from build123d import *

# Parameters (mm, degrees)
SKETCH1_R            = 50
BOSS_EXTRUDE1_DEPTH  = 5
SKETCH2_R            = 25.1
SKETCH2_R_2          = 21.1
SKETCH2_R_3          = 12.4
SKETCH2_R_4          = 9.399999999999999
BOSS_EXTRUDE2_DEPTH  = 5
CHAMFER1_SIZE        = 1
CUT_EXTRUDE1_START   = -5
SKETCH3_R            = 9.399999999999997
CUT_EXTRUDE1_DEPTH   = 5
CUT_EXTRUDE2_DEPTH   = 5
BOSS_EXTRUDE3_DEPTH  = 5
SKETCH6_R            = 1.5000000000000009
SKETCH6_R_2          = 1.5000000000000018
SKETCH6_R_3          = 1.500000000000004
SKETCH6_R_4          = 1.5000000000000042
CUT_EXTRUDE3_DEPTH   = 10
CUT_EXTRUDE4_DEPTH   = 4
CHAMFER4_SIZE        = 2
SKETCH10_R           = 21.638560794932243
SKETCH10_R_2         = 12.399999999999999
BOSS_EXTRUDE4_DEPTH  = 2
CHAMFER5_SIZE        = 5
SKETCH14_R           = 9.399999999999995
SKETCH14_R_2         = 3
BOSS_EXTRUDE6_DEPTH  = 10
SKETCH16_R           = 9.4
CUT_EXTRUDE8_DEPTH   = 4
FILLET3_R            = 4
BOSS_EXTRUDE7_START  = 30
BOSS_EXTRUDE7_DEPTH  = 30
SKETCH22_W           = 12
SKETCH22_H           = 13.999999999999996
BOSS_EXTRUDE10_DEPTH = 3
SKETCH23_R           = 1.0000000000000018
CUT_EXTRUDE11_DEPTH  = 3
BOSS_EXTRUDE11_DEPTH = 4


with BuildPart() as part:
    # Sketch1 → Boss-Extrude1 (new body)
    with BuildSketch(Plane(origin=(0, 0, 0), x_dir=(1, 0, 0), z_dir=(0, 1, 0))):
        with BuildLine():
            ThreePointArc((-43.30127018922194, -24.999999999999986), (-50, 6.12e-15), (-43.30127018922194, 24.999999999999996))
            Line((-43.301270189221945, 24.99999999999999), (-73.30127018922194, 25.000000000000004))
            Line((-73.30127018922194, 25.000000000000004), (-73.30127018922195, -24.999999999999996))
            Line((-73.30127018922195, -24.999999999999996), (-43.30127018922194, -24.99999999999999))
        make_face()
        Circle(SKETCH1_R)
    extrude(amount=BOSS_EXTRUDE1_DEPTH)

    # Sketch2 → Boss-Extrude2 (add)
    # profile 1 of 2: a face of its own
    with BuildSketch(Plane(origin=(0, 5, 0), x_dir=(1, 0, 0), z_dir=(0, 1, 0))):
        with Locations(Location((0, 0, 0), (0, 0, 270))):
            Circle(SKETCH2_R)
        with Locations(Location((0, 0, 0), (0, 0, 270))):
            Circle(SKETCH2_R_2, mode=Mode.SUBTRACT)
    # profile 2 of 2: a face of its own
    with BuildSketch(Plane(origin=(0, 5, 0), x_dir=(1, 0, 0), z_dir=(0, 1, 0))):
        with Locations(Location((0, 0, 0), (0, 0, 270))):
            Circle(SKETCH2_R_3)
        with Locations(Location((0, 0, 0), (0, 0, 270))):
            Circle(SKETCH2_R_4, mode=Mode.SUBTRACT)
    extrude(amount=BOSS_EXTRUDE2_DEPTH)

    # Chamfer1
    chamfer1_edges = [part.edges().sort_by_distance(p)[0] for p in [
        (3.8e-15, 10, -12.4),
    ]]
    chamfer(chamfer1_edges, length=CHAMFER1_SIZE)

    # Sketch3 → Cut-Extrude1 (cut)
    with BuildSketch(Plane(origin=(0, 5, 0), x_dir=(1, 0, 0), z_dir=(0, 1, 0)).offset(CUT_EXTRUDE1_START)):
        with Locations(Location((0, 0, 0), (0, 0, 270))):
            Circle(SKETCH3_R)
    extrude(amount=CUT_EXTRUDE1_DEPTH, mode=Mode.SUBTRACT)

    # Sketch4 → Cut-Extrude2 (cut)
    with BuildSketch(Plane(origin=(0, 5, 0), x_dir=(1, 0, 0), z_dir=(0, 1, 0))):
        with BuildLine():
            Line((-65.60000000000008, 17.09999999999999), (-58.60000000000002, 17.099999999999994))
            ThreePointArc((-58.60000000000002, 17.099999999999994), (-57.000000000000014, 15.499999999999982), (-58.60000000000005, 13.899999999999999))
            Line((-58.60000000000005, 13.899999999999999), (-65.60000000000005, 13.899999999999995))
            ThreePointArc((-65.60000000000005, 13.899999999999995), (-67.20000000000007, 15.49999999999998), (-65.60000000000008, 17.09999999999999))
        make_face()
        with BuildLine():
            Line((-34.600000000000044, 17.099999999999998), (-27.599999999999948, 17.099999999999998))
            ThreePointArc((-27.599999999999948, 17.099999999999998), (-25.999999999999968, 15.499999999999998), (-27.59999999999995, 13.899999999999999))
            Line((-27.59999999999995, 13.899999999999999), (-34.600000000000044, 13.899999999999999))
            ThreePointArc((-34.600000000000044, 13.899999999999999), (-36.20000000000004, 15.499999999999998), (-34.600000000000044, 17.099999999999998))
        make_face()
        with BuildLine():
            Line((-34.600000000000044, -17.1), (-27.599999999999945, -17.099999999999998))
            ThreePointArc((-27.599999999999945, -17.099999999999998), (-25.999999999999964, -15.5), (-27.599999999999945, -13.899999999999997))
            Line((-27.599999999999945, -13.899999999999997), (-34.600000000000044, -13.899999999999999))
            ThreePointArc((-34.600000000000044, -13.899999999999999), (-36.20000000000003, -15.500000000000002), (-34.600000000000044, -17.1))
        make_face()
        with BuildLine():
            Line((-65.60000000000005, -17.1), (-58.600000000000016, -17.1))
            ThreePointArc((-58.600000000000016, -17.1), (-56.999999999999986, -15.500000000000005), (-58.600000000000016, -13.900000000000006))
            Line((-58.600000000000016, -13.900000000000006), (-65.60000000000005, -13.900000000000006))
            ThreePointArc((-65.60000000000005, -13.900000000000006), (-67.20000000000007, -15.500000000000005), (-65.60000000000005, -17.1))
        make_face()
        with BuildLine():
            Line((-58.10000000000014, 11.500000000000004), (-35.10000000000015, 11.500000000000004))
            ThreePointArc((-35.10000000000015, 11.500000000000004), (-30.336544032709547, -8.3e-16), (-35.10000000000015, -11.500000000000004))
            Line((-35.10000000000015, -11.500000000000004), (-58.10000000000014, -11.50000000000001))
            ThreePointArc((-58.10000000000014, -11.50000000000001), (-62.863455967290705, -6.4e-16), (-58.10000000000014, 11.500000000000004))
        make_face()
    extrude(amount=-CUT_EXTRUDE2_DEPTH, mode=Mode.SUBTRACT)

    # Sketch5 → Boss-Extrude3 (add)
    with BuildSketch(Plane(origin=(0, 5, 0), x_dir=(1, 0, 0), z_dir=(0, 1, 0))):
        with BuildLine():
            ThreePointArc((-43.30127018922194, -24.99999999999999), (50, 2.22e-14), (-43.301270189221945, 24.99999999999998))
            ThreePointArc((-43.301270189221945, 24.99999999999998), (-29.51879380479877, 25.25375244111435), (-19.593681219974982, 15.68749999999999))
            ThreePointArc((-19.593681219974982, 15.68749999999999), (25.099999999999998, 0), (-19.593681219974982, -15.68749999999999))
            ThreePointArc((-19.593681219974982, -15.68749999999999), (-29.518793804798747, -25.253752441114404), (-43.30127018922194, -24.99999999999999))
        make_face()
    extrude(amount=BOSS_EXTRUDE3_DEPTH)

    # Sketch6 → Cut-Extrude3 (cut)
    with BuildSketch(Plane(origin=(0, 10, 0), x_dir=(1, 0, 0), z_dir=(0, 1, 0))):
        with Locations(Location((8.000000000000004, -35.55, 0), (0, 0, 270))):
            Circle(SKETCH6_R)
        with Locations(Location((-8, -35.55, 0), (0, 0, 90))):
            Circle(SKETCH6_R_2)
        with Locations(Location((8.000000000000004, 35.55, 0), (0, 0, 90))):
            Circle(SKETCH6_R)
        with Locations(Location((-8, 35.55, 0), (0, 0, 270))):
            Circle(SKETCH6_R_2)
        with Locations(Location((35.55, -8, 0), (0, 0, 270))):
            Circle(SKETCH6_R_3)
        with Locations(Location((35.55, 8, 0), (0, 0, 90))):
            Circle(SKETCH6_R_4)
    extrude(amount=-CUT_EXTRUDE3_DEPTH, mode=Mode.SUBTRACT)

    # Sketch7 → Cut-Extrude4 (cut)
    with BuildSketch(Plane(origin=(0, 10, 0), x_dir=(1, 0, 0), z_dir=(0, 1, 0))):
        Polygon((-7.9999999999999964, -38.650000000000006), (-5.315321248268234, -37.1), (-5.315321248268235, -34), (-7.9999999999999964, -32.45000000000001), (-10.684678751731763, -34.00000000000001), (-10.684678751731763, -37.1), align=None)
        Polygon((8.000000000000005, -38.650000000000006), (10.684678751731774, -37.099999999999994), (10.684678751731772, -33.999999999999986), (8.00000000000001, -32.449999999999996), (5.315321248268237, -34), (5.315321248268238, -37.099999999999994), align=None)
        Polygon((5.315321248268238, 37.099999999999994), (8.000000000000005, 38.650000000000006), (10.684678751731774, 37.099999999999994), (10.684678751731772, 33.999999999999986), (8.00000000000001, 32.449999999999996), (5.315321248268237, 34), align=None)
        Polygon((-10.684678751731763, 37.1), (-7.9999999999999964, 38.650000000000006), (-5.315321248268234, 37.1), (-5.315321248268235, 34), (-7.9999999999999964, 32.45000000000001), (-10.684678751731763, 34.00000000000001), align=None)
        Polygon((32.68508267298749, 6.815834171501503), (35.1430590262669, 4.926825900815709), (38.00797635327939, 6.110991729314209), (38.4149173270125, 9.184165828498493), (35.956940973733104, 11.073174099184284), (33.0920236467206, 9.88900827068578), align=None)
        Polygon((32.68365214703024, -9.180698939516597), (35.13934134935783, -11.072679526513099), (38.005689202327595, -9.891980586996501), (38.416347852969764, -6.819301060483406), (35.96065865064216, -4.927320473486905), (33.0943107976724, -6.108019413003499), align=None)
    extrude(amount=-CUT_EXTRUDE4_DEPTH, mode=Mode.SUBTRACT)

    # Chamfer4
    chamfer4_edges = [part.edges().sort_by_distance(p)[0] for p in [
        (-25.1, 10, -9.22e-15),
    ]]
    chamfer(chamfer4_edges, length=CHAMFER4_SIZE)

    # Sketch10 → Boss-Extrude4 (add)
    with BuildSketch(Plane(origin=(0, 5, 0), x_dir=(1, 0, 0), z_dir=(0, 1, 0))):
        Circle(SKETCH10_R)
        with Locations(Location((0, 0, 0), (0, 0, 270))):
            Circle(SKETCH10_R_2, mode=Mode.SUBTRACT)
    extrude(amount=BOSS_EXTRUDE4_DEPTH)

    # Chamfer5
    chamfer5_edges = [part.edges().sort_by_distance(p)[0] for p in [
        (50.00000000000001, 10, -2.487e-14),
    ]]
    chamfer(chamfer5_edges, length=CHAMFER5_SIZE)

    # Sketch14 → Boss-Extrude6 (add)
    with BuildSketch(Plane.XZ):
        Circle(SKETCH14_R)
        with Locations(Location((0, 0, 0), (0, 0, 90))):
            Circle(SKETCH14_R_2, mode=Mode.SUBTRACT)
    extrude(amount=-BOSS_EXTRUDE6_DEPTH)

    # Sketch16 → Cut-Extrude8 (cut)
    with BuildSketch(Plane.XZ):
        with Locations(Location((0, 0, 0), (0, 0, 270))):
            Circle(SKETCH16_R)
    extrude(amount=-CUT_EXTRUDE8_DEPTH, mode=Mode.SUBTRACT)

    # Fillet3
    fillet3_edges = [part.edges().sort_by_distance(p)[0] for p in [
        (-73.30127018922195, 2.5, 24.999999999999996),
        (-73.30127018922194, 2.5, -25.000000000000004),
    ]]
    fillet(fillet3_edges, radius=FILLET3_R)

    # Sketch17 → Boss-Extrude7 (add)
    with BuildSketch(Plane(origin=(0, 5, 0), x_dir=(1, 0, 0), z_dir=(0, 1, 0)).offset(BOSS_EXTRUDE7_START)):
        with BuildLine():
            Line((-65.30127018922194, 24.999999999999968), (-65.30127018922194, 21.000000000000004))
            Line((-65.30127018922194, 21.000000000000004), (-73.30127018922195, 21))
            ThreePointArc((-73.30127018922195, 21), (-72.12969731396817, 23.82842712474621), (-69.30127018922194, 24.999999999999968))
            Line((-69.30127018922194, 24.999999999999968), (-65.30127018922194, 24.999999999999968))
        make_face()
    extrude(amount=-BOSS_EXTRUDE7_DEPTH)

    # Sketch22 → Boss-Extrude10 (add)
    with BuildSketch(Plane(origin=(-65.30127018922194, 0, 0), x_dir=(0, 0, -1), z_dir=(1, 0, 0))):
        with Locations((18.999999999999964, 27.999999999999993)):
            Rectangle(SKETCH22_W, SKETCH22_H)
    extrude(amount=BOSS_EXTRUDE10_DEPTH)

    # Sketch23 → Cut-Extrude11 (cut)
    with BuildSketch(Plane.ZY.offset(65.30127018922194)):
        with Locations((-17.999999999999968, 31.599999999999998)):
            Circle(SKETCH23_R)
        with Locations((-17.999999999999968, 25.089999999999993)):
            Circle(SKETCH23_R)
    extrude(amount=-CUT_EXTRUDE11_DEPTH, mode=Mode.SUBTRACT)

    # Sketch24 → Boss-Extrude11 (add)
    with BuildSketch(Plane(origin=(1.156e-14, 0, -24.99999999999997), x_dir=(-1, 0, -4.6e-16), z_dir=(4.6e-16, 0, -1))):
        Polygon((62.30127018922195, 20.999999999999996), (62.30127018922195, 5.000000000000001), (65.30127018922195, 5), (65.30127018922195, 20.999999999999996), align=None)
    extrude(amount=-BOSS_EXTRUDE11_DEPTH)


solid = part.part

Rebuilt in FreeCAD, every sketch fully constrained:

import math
import FreeCAD as App
import Part
import Sketcher

V = App.Vector
Q = App.Units.Quantity


def edges_at(feature, points):
    """Names of the edges that pass closest to the given points."""
    edges = feature.Shape.Edges
    near = lambda p: min(range(len(edges)), key=lambda i: edges[i].distToShape(Part.Vertex(*p))[0])
    return sorted({f"Edge{near(p) + 1}" for p in points})

doc = App.newDocument("Part")
body = doc.addObject("PartDesign::Body", "Body")

sketch1 = body.newObject("Sketcher::SketchObject", "Sketch")
sketch1.AttachmentSupport = (doc.getObject("XZ_Plane"), [""])
sketch1.MapMode = "FlatFace"
sketch1.addGeometry(Part.LineSegment(V(-43, -25, 0), V(-73, -25, 0)), False)
sketch1.addGeometry(Part.LineSegment(V(-73, -25, 0), V(-73, 25, 0)), False)
sketch1.addGeometry(Part.LineSegment(V(-73, 25, 0), V(-43, 25, 0)), False)
sketch1.addGeometry(Part.ArcOfCircle(Part.Circle(V(0, 0, 0), V(0, 0, 1), 50), math.radians(-150), math.radians(150)), False)
sketch1.addConstraint(Sketcher.Constraint("Coincident", 0, 2, 1, 1))
sketch1.addConstraint(Sketcher.Constraint("Coincident", 1, 2, 2, 1))
sketch1.addConstraint(Sketcher.Constraint("Coincident", 2, 2, 3, 2))
sketch1.addConstraint(Sketcher.Constraint("Coincident", 3, 1, 0, 1))
sketch1.addConstraint(Sketcher.Constraint("Horizontal", 0))
sketch1.addConstraint(Sketcher.Constraint("Vertical", 1))
sketch1.addConstraint(Sketcher.Constraint("Horizontal", 2))
sketch1.addConstraint(Sketcher.Constraint("Coincident", 3, 3, -1, 1))
sketch1.addConstraint(Sketcher.Constraint("Vertical", 2, 2, 3, 1))
sketch1.addConstraint(Sketcher.Constraint("Radius", 3, Q("50 mm")))
sketch1.addConstraint(Sketcher.Constraint("DistanceX", 0, 2, 0, 1, Q("30 mm")))
sketch1.addConstraint(Sketcher.Constraint("DistanceY", 1, 1, 1, 2, Q("50 mm")))
pad1 = body.newObject("PartDesign::Pad", "Pad")
pad1.Profile = sketch1
pad1.Length = 5
pad1.Reversed = True

sketch2 = body.newObject("Sketcher::SketchObject", "Sketch001")
sketch2.AttachmentSupport = (doc.getObject("XZ_Plane"), [""])
sketch2.MapMode = "FlatFace"
sketch2.AttachmentOffset = App.Placement(V(0, 0, -5), App.Rotation())
sketch2.addGeometry(Part.Circle(V(0, 0, 0), V(0, 0, 1), 25), False)
sketch2.addGeometry(Part.Circle(V(0, 0, 0), V(0, 0, 1), 21), False)
sketch2.addGeometry(Part.Circle(V(0, 0, 0), V(0, 0, 1), 12), False)
sketch2.addGeometry(Part.Circle(V(0, 0, 0), V(0, 0, 1), 9), False)
sketch2.addConstraint(Sketcher.Constraint("Coincident", 0, 3, -1, 1))
sketch2.addConstraint(Sketcher.Constraint("Coincident", 1, 3, -1, 1))
sketch2.addConstraint(Sketcher.Constraint("Coincident", 2, 3, -1, 1))
sketch2.addConstraint(Sketcher.Constraint("Coincident", 3, 3, -1, 1))
sketch2.addConstraint(Sketcher.Constraint("Diameter", 0, Q("50.2 mm")))
sketch2.addConstraint(Sketcher.Constraint("Diameter", 1, Q("42.2 mm")))
sketch2.addConstraint(Sketcher.Constraint("Diameter", 2, Q("24.8 mm")))
sketch2.addConstraint(Sketcher.Constraint("Diameter", 3, Q("18.8 mm")))
pad2 = body.newObject("PartDesign::Pad", "Pad001")
pad2.Profile = sketch2
pad2.Length = 5
pad2.Reversed = True
doc.recompute()

chamfer = body.newObject("PartDesign::Chamfer", "Chamfer")
chamfer.Base = (pad2, edges_at(pad2, [(0, 10, -12.4)]))
chamfer.Size = 1

sketch3 = body.newObject("Sketcher::SketchObject", "Sketch002")
sketch3.AttachmentSupport = (doc.getObject("XZ_Plane"), [""])
sketch3.MapMode = "FlatFace"
sketch3.addGeometry(Part.Circle(V(0, 0, 0), V(0, 0, 1), 9), False)
sketch3.addConstraint(Sketcher.Constraint("Coincident", 0, 3, -1, 1))
sketch3.addConstraint(Sketcher.Constraint("Diameter", 0, Q("18.8 mm")))
pocket1 = body.newObject("PartDesign::Pocket", "Pocket")
pocket1.Profile = sketch3
pocket1.Length = 5

sketch4 = body.newObject("Sketcher::SketchObject", "Sketch003")
sketch4.AttachmentSupport = (doc.getObject("XZ_Plane"), [""])
sketch4.MapMode = "FlatFace"
sketch4.AttachmentOffset = App.Placement(V(0, 0, -5), App.Rotation())
sketch4.addGeometry(Part.LineSegment(V(-58.6, -17.1, 0), V(-65.6, -17.1, 0)), False)
sketch4.addGeometry(Part.ArcOfCircle(Part.Circle(V(-65.6, -15.5, 0), V(0, 0, 1), 1.6), math.radians(90), math.radians(270)), False)
sketch4.addGeometry(Part.LineSegment(V(-65.6, -13.9, 0), V(-58.6, -13.9, 0)), False)
sketch4.addGeometry(Part.ArcOfCircle(Part.Circle(V(-58.6, -15.5, 0), V(0, 0, 1), 1.6), math.radians(-90), math.radians(90)), False)
sketch4.addGeometry(Part.LineSegment(V(-27.6, -17.1, 0), V(-34.6, -17.1, 0)), False)
sketch4.addGeometry(Part.ArcOfCircle(Part.Circle(V(-34.6, -15.5, 0), V(0, 0, 1), 1.6), math.radians(90), math.radians(270)), False)
sketch4.addGeometry(Part.LineSegment(V(-34.6, -13.9, 0), V(-27.6, -13.9, 0)), False)
sketch4.addGeometry(Part.ArcOfCircle(Part.Circle(V(-27.6, -15.5, 0), V(0, 0, 1), 1.6), math.radians(-90), math.radians(90)), False)
sketch4.addGeometry(Part.LineSegment(V(-34.6, 17.1, 0), V(-27.6, 17.1, 0)), False)
sketch4.addGeometry(Part.ArcOfCircle(Part.Circle(V(-27.6, 15.5, 0), V(0, 0, 1), 1.6), math.radians(-90), math.radians(90)), False)
sketch4.addGeometry(Part.LineSegment(V(-27.6, 13.9, 0), V(-34.6, 13.9, 0)), False)
sketch4.addGeometry(Part.ArcOfCircle(Part.Circle(V(-34.6, 15.5, 0), V(0, 0, 1), 1.6), math.radians(90), math.radians(270)), False)
sketch4.addGeometry(Part.LineSegment(V(-65.6, 17.1, 0), V(-58.6, 17.1, 0)), False)
sketch4.addGeometry(Part.ArcOfCircle(Part.Circle(V(-58.6, 15.5, 0), V(0, 0, 1), 1.6), math.radians(-90), math.radians(90)), False)
sketch4.addGeometry(Part.LineSegment(V(-58.6, 13.9, 0), V(-65.6, 13.9, 0)), False)
sketch4.addGeometry(Part.ArcOfCircle(Part.Circle(V(-65.6, 15.5, 0), V(0, 0, 1), 1.6), math.radians(90), math.radians(270)), False)
sketch4.addGeometry(Part.LineSegment(V(-35.1, -11.5, 0), V(-58.1, -11.5, 0)), False)
sketch4.addGeometry(Part.ArcOfCircle(Part.Circle(V(-46.6, 0, 0), V(0, 0, 1), 16.3), math.radians(135), math.radians(225)), False)
sketch4.addGeometry(Part.LineSegment(V(-58.1, 11.5, 0), V(-35.1, 11.5, 0)), False)
sketch4.addGeometry(Part.ArcOfCircle(Part.Circle(V(-46.6, 0, 0), V(0, 0, 1), 16.3), math.radians(-45), math.radians(45)), False)
sketch4.addConstraint(Sketcher.Constraint("Tangent", 0, 2, 1, 2))
sketch4.addConstraint(Sketcher.Constraint("Tangent", 1, 1, 2, 1))
sketch4.addConstraint(Sketcher.Constraint("Tangent", 2, 2, 3, 2))
sketch4.addConstraint(Sketcher.Constraint("Tangent", 3, 1, 0, 1))
sketch4.addConstraint(Sketcher.Constraint("Tangent", 4, 2, 5, 2))
sketch4.addConstraint(Sketcher.Constraint("Tangent", 5, 1, 6, 1))
sketch4.addConstraint(Sketcher.Constraint("Tangent", 6, 2, 7, 2))
sketch4.addConstraint(Sketcher.Constraint("Tangent", 7, 1, 4, 1))
sketch4.addConstraint(Sketcher.Constraint("Tangent", 8, 2, 9, 2))
sketch4.addConstraint(Sketcher.Constraint("Tangent", 9, 1, 10, 1))
sketch4.addConstraint(Sketcher.Constraint("Tangent", 10, 2, 11, 2))
sketch4.addConstraint(Sketcher.Constraint("Tangent", 11, 1, 8, 1))
sketch4.addConstraint(Sketcher.Constraint("Tangent", 12, 2, 13, 2))
sketch4.addConstraint(Sketcher.Constraint("Tangent", 13, 1, 14, 1))
sketch4.addConstraint(Sketcher.Constraint("Tangent", 14, 2, 15, 2))
sketch4.addConstraint(Sketcher.Constraint("Tangent", 15, 1, 12, 1))
sketch4.addConstraint(Sketcher.Constraint("Coincident", 16, 2, 17, 2))
sketch4.addConstraint(Sketcher.Constraint("Coincident", 17, 1, 18, 1))
sketch4.addConstraint(Sketcher.Constraint("Coincident", 18, 2, 19, 2))
sketch4.addConstraint(Sketcher.Constraint("Coincident", 19, 1, 16, 1))
sketch4.addConstraint(Sketcher.Constraint("Horizontal", 0))
sketch4.addConstraint(Sketcher.Constraint("Horizontal", 2))
sketch4.addConstraint(Sketcher.Constraint("Horizontal", 4))
sketch4.addConstraint(Sketcher.Constraint("Horizontal", 6))
sketch4.addConstraint(Sketcher.Constraint("Horizontal", 8))
sketch4.addConstraint(Sketcher.Constraint("Horizontal", 10))
sketch4.addConstraint(Sketcher.Constraint("Horizontal", 12))
sketch4.addConstraint(Sketcher.Constraint("Horizontal", 14))
sketch4.addConstraint(Sketcher.Constraint("Horizontal", 16))
sketch4.addConstraint(Sketcher.Constraint("Horizontal", 18))
sketch4.addConstraint(Sketcher.Constraint("Coincident", 19, 3, 17, 3))
sketch4.addConstraint(Sketcher.Constraint("Equal", 3, 5))
sketch4.addConstraint(Sketcher.Constraint("Equal", 7, 9))
sketch4.addConstraint(Sketcher.Constraint("Equal", 11, 13))
sketch4.addConstraint(Sketcher.Constraint("Equal", 17, 19))
sketch4.addConstraint(Sketcher.Constraint("Symmetric", 7, 3, 9, 3, -1))
sketch4.addConstraint(Sketcher.Constraint("Symmetric", 3, 3, 13, 3, -1))
sketch4.addConstraint(Sketcher.Constraint("Symmetric", 16, 2, 17, 1, -1))
sketch4.addConstraint(Sketcher.Constraint("Horizontal", 3, 3, 5, 3))
sketch4.addConstraint(Sketcher.Constraint("Vertical", 5, 3, 11, 3))
sketch4.addConstraint(Sketcher.Constraint("Vertical", 1, 3, 15, 3))
sketch4.addConstraint(Sketcher.Constraint("Equal", 2, 4))
sketch4.addConstraint(Sketcher.Constraint("Radius", 1, Q("1.6 mm")))
sketch4.addConstraint(Sketcher.Constraint("DistanceX", 0, 2, 0, 1, Q("7 mm")))
sketch4.addConstraint(Sketcher.Constraint("DistanceX", 16, 2, 16, 1, Q("23 mm")))
sketch4.addConstraint(Sketcher.Constraint("DistanceX", 3, 3, 5, 3, Q("24 mm")))
sketch4.addConstraint(Sketcher.Constraint("DistanceY", 7, 3, 9, 3, Q("31 mm")))
sketch4.addConstraint(Sketcher.Constraint("DistanceX", 3, 3, 17, 3, Q("12 mm")))
sketch4.addConstraint(Sketcher.Constraint("DistanceY", 3, 3, 16, 2, Q("4 mm")))
sketch4.addConstraint(Sketcher.Constraint("DistanceX", 1, 3, -1, 1, Q("65.6 mm")))
pocket2 = body.newObject("PartDesign::Pocket", "Pocket001")
pocket2.Profile = sketch4
pocket2.Length = 5
pocket2.Reversed = True

sketch5 = body.newObject("Sketcher::SketchObject", "Sketch004")
sketch5.AttachmentSupport = (doc.getObject("XZ_Plane"), [""])
sketch5.MapMode = "FlatFace"
sketch5.AttachmentOffset = App.Placement(V(0, 0, -5), App.Rotation())
sketch5.addGeometry(Part.ArcOfCircle(Part.Circle(V(0, 0, 0), V(0, 0, 1), 50), math.radians(-150), math.radians(150)), False)
sketch5.addGeometry(Part.ArcOfCircle(Part.Circle(V(-36, -8, 0), V(0, 0, 1), 18), math.radians(-114), math.radians(-24)), False)
sketch5.addGeometry(Part.ArcOfCircle(Part.Circle(V(0, 0, 0), V(0, 0, 1), 25), math.radians(-141), math.radians(141)), False)
sketch5.addGeometry(Part.ArcOfCircle(Part.Circle(V(-36, 8, 0), V(0, 0, 1), 18), math.radians(24), math.radians(114)), False)
sketch5.addConstraint(Sketcher.Constraint("Coincident", 0, 1, 1, 1))
sketch5.addConstraint(Sketcher.Constraint("Coincident", 1, 2, 2, 1))
sketch5.addConstraint(Sketcher.Constraint("Coincident", 2, 2, 3, 1))
sketch5.addConstraint(Sketcher.Constraint("Coincident", 3, 2, 0, 2))
sketch5.addConstraint(Sketcher.Constraint("Coincident", 0, 3, -1, 1))
sketch5.addConstraint(Sketcher.Constraint("Coincident", 2, 3, -1, 1))
sketch5.addConstraint(Sketcher.Constraint("Equal", 1, 3))
sketch5.addConstraint(Sketcher.Constraint("Symmetric", 1, 3, 3, 3, -1))
sketch5.addConstraint(Sketcher.Constraint("Radius", 0, Q("50 mm")))
sketch5.addConstraint(Sketcher.Constraint("Radius", 2, Q("25.1 mm")))
sketch5.addConstraint(Sketcher.Constraint("DistanceY", 0, 1, -1, 1, Q("25 mm")))
sketch5.addConstraint(Sketcher.Constraint("Radius", 1, Q("18.010725 mm")))
sketch5.addConstraint(Sketcher.Constraint("DistanceY", 1, 2, 2, 2, Q("31.375 mm")))
pad3 = body.newObject("PartDesign::Pad", "Pad002")
pad3.Profile = sketch5
pad3.Length = 5
pad3.Reversed = True

sketch6 = body.newObject("Sketcher::SketchObject", "Sketch005")
sketch6.AttachmentSupport = (doc.getObject("XZ_Plane"), [""])
sketch6.MapMode = "FlatFace"
sketch6.AttachmentOffset = App.Placement(V(0, 0, -10), App.Rotation())
sketch6.addGeometry(Part.Circle(V(8, 35.5, 0), V(0, 0, 1), 1.5), False)
sketch6.addGeometry(Part.Circle(V(-8, 35.5, 0), V(0, 0, 1), 1.5), False)
sketch6.addGeometry(Part.Circle(V(8, -35.5, 0), V(0, 0, 1), 1.5), False)
sketch6.addGeometry(Part.Circle(V(-8, -35.5, 0), V(0, 0, 1), 1.5), False)
sketch6.addGeometry(Part.Circle(V(35.5, 8, 0), V(0, 0, 1), 1.5), False)
sketch6.addGeometry(Part.Circle(V(35.5, -8, 0), V(0, 0, 1), 1.5), False)
sketch6.addConstraint(Sketcher.Constraint("Equal", 0, 1))
sketch6.addConstraint(Sketcher.Constraint("Equal", 1, 2))
sketch6.addConstraint(Sketcher.Constraint("Equal", 2, 3))
sketch6.addConstraint(Sketcher.Constraint("Equal", 3, 4))
sketch6.addConstraint(Sketcher.Constraint("Equal", 4, 5))
sketch6.addConstraint(Sketcher.Constraint("Symmetric", 1, 3, 2, 3, -1, 1))
sketch6.addConstraint(Sketcher.Constraint("Symmetric", 0, 3, 3, 3, -1, 1))
sketch6.addConstraint(Sketcher.Constraint("Symmetric", 0, 3, 1, 3, -2))
sketch6.addConstraint(Sketcher.Constraint("Symmetric", 4, 3, 5, 3, -1))
sketch6.addConstraint(Sketcher.Constraint("Diameter", 0, Q("3 mm")))
sketch6.addConstraint(Sketcher.Constraint("DistanceX", -1, 1, 0, 3, Q("8 mm")))
sketch6.addConstraint(Sketcher.Constraint("DistanceY", -1, 1, 4, 3, Q("8 mm")))
sketch6.addConstraint(Sketcher.Constraint("DistanceY", 2, 3, 0, 3, Q("71.1 mm")))
sketch6.addConstraint(Sketcher.Constraint("DistanceX", -1, 1, 4, 3, Q("35.55 mm")))
pocket3 = body.newObject("PartDesign::Pocket", "Pocket002")
pocket3.Profile = sketch6
pocket3.Length = 10
pocket3.Reversed = True

sketch7 = body.newObject("Sketcher::SketchObject", "Sketch006")
sketch7.AttachmentSupport = (doc.getObject("XZ_Plane"), [""])
sketch7.MapMode = "FlatFace"
sketch7.AttachmentOffset = App.Placement(V(0, 0, -10), App.Rotation())
sketch7.addGeometry(Part.LineSegment(V(-8, 38.6, 0), V(-5.3, 37.1, 0)), False)
sketch7.addGeometry(Part.LineSegment(V(-5.3, 37.1, 0), V(-5.3, 34, 0)), False)
sketch7.addGeometry(Part.LineSegment(V(-5.3, 34, 0), V(-8, 32.5, 0)), False)
sketch7.addGeometry(Part.LineSegment(V(-8, 32.5, 0), V(-10.7, 34, 0)), False)
sketch7.addGeometry(Part.LineSegment(V(-10.7, 34, 0), V(-10.7, 37.1, 0)), False)
sketch7.addGeometry(Part.LineSegment(V(-10.7, 37.1, 0), V(-8, 38.6, 0)), False)
sketch7.addGeometry(Part.LineSegment(V(8, 38.6, 0), V(10.7, 37.1, 0)), False)
sketch7.addGeometry(Part.LineSegment(V(10.7, 37.1, 0), V(10.7, 34, 0)), False)
sketch7.addGeometry(Part.LineSegment(V(10.7, 34, 0), V(8, 32.5, 0)), False)
sketch7.addGeometry(Part.LineSegment(V(8, 32.5, 0), V(5.3, 34, 0)), False)
sketch7.addGeometry(Part.LineSegment(V(5.3, 34, 0), V(5.3, 37.1, 0)), False)
sketch7.addGeometry(Part.LineSegment(V(5.3, 37.1, 0), V(8, 38.6, 0)), False)
sketch7.addGeometry(Part.LineSegment(V(8, -38.6, 0), V(5.3, -37.1, 0)), False)
sketch7.addGeometry(Part.LineSegment(V(5.3, -37.1, 0), V(5.3, -34, 0)), False)
sketch7.addGeometry(Part.LineSegment(V(5.3, -34, 0), V(8, -32.5, 0)), False)
sketch7.addGeometry(Part.LineSegment(V(8, -32.5, 0), V(10.7, -34, 0)), False)
sketch7.addGeometry(Part.LineSegment(V(10.7, -34, 0), V(10.7, -37.1, 0)), False)
sketch7.addGeometry(Part.LineSegment(V(10.7, -37.1, 0), V(8, -38.6, 0)), False)
sketch7.addGeometry(Part.LineSegment(V(-8, -38.6, 0), V(-10.7, -37.1, 0)), False)
sketch7.addGeometry(Part.LineSegment(V(-10.7, -37.1, 0), V(-10.7, -34, 0)), False)
sketch7.addGeometry(Part.LineSegment(V(-10.7, -34, 0), V(-8, -32.5, 0)), False)
sketch7.addGeometry(Part.LineSegment(V(-8, -32.5, 0), V(-5.3, -34, 0)), False)
sketch7.addGeometry(Part.LineSegment(V(-5.3, -34, 0), V(-5.3, -37.1, 0)), False)
sketch7.addGeometry(Part.LineSegment(V(-5.3, -37.1, 0), V(-8, -38.6, 0)), False)
sketch7.addGeometry(Part.LineSegment(V(32.7, -6.8, 0), V(35.1, -4.9, 0)), False)
sketch7.addGeometry(Part.LineSegment(V(35.1, -4.9, 0), V(38, -6.1, 0)), False)
sketch7.addGeometry(Part.LineSegment(V(38, -6.1, 0), V(38.4, -9.2, 0)), False)
sketch7.addGeometry(Part.LineSegment(V(38.4, -9.2, 0), V(36, -11.1, 0)), False)
sketch7.addGeometry(Part.LineSegment(V(36, -11.1, 0), V(33.1, -9.9, 0)), False)
sketch7.addGeometry(Part.LineSegment(V(33.1, -9.9, 0), V(32.7, -6.8, 0)), False)
sketch7.addGeometry(Part.LineSegment(V(32.7, 9.2, 0), V(35.1, 11.1, 0)), False)
sketch7.addGeometry(Part.LineSegment(V(35.1, 11.1, 0), V(38, 9.9, 0)), False)
sketch7.addGeometry(Part.LineSegment(V(38, 9.9, 0), V(38.4, 6.8, 0)), False)
sketch7.addGeometry(Part.LineSegment(V(38.4, 6.8, 0), V(36, 4.9, 0)), False)
sketch7.addGeometry(Part.LineSegment(V(36, 4.9, 0), V(33.1, 6.1, 0)), False)
sketch7.addGeometry(Part.LineSegment(V(33.1, 6.1, 0), V(32.7, 9.2, 0)), False)
sketch7.addConstraint(Sketcher.Constraint("Coincident", 0, 2, 1, 1))
sketch7.addConstraint(Sketcher.Constraint("Coincident", 1, 2, 2, 1))
sketch7.addConstraint(Sketcher.Constraint("Coincident", 2, 2, 3, 1))
sketch7.addConstraint(Sketcher.Constraint("Coincident", 3, 2, 4, 1))
sketch7.addConstraint(Sketcher.Constraint("Coincident", 4, 2, 5, 1))
sketch7.addConstraint(Sketcher.Constraint("Coincident", 5, 2, 0, 1))
sketch7.addConstraint(Sketcher.Constraint("Coincident", 6, 2, 7, 1))
sketch7.addConstraint(Sketcher.Constraint("Coincident", 7, 2, 8, 1))
sketch7.addConstraint(Sketcher.Constraint("Coincident", 8, 2, 9, 1))
sketch7.addConstraint(Sketcher.Constraint("Coincident", 9, 2, 10, 1))
sketch7.addConstraint(Sketcher.Constraint("Coincident", 10, 2, 11, 1))
sketch7.addConstraint(Sketcher.Constraint("Coincident", 11, 2, 6, 1))
sketch7.addConstraint(Sketcher.Constraint("Coincident", 12, 2, 13, 1))
sketch7.addConstraint(Sketcher.Constraint("Coincident", 13, 2, 14, 1))
sketch7.addConstraint(Sketcher.Constraint("Coincident", 14, 2, 15, 1))
sketch7.addConstraint(Sketcher.Constraint("Coincident", 15, 2, 16, 1))
sketch7.addConstraint(Sketcher.Constraint("Coincident", 16, 2, 17, 1))
sketch7.addConstraint(Sketcher.Constraint("Coincident", 17, 2, 12, 1))
sketch7.addConstraint(Sketcher.Constraint("Coincident", 18, 2, 19, 1))
sketch7.addConstraint(Sketcher.Constraint("Coincident", 19, 2, 20, 1))
sketch7.addConstraint(Sketcher.Constraint("Coincident", 20, 2, 21, 1))
sketch7.addConstraint(Sketcher.Constraint("Coincident", 21, 2, 22, 1))
sketch7.addConstraint(Sketcher.Constraint("Coincident", 22, 2, 23, 1))
sketch7.addConstraint(Sketcher.Constraint("Coincident", 23, 2, 18, 1))
sketch7.addConstraint(Sketcher.Constraint("Coincident", 24, 2, 25, 1))
sketch7.addConstraint(Sketcher.Constraint("Coincident", 25, 2, 26, 1))
sketch7.addConstraint(Sketcher.Constraint("Coincident", 26, 2, 27, 1))
sketch7.addConstraint(Sketcher.Constraint("Coincident", 27, 2, 28, 1))
sketch7.addConstraint(Sketcher.Constraint("Coincident", 28, 2, 29, 1))
sketch7.addConstraint(Sketcher.Constraint("Coincident", 29, 2, 24, 1))
sketch7.addConstraint(Sketcher.Constraint("Coincident", 30, 2, 31, 1))
sketch7.addConstraint(Sketcher.Constraint("Coincident", 31, 2, 32, 1))
sketch7.addConstraint(Sketcher.Constraint("Coincident", 32, 2, 33, 1))
sketch7.addConstraint(Sketcher.Constraint("Coincident", 33, 2, 34, 1))
sketch7.addConstraint(Sketcher.Constraint("Coincident", 34, 2, 35, 1))
sketch7.addConstraint(Sketcher.Constraint("Coincident", 35, 2, 30, 1))
sketch7.addConstraint(Sketcher.Constraint("Vertical", 1))
sketch7.addConstraint(Sketcher.Constraint("Vertical", 4))
sketch7.addConstraint(Sketcher.Constraint("Vertical", 7))
sketch7.addConstraint(Sketcher.Constraint("Vertical", 10))
sketch7.addConstraint(Sketcher.Constraint("Vertical", 13))
sketch7.addConstraint(Sketcher.Constraint("Vertical", 16))
sketch7.addConstraint(Sketcher.Constraint("Vertical", 19))
sketch7.addConstraint(Sketcher.Constraint("Vertical", 22))
sketch7.addConstraint(Sketcher.Constraint("Symmetric", 0, 2, 12, 2, -1, 1))
sketch7.addConstraint(Sketcher.Constraint("Symmetric", 2, 2, 14, 2, -1, 1))
sketch7.addConstraint(Sketcher.Constraint("Symmetric", 3, 2, 15, 2, -1, 1))
sketch7.addConstraint(Sketcher.Constraint("Symmetric", 5, 2, 17, 2, -1, 1))
sketch7.addConstraint(Sketcher.Constraint("Symmetric", 6, 2, 18, 2, -1, 1))
sketch7.addConstraint(Sketcher.Constraint("Symmetric", 8, 2, 20, 2, -1, 1))
sketch7.addConstraint(Sketcher.Constraint("Symmetric", 9, 2, 21, 2, -1, 1))
sketch7.addConstraint(Sketcher.Constraint("Symmetric", 11, 2, 23, 2, -1, 1))
sketch7.addConstraint(Sketcher.Constraint("Symmetric", 4, 2, 6, 2, -2))
sketch7.addConstraint(Sketcher.Constraint("Symmetric", 2, 2, 8, 2, -2))
sketch7.addConstraint(Sketcher.Constraint("Symmetric", 1, 2, 9, 2, -2))
sketch7.addConstraint(Sketcher.Constraint("Symmetric", 5, 2, 11, 2, -2))
sketch7.addConstraint(Sketcher.Constraint("Parallel", 0, 3))
sketch7.addConstraint(Sketcher.Constraint("Parallel", 2, 5))
sketch7.addConstraint(Sketcher.Constraint("Parallel", 3, 6))
sketch7.addConstraint(Sketcher.Constraint("Parallel", 5, 8))
sketch7.addConstraint(Sketcher.Constraint("Parallel", 8, 11))
sketch7.addConstraint(Sketcher.Constraint("Parallel", 11, 14))
sketch7.addConstraint(Sketcher.Constraint("Parallel", 14, 17))
sketch7.addConstraint(Sketcher.Constraint("Parallel", 17, 20))
sketch7.addConstraint(Sketcher.Constraint("Parallel", 20, 23))
sketch7.addConstraint(Sketcher.Constraint("Parallel", 24, 27))
sketch7.addConstraint(Sketcher.Constraint("Parallel", 25, 28))
sketch7.addConstraint(Sketcher.Constraint("Parallel", 26, 29))
sketch7.addConstraint(Sketcher.Constraint("Parallel", 30, 33))
sketch7.addConstraint(Sketcher.Constraint("Parallel", 31, 34))
sketch7.addConstraint(Sketcher.Constraint("Parallel", 32, 35))
sketch7.addConstraint(Sketcher.Constraint("Horizontal", 1, 2, 3, 2))
sketch7.addConstraint(Sketcher.Constraint("Horizontal", 0, 2, 4, 2))
sketch7.addConstraint(Sketcher.Constraint("Equal", 23, 24))
sketch7.addConstraint(Sketcher.Constraint("Equal", 24, 25))
sketch7.addConstraint(Sketcher.Constraint("Equal", 25, 26))
sketch7.addConstraint(Sketcher.Constraint("Equal", 26, 27))
sketch7.addConstraint(Sketcher.Constraint("Equal", 29, 30))
sketch7.addConstraint(Sketcher.Constraint("Equal", 30, 31))
sketch7.addConstraint(Sketcher.Constraint("Equal", 31, 32))
sketch7.addConstraint(Sketcher.Constraint("Equal", 32, 33))
sketch7.addConstraint(Sketcher.Constraint("Angle", 0, Q("-30 deg")))
sketch7.addConstraint(Sketcher.Constraint("DistanceY", 1, 2, 1, 1, Q("3.1 mm")))
sketch7.addConstraint(Sketcher.Constraint("DistanceY", -1, 1, 1, 2, Q("34 mm")))
sketch7.addConstraint(Sketcher.Constraint("DistanceX", 2, 2, -1, 1, Q("8 mm")))
sketch7.addConstraint(Sketcher.Constraint("Distance", 0, Q("3.1 mm")))
sketch7.addConstraint(Sketcher.Constraint("DistanceY", -1, 1, 32, 2, Q("6.819301 mm")))
sketch7.addConstraint(Sketcher.Constraint("DistanceY", -1, 1, 35, 2, Q("9.180699 mm")))
sketch7.addConstraint(Sketcher.Constraint("DistanceY", 31, 2, 30, 2, Q("1.180699 mm")))
sketch7.addConstraint(Sketcher.Constraint("DistanceX", 24, 2, 33, 2, Q("0.8176 mm")))
sketch7.addConstraint(Sketcher.Constraint("DistanceX", -1, 1, 24, 2, Q("35.143059 mm")))
sketch7.addConstraint(Sketcher.Constraint("DistanceY", 25, 2, -1, 1, Q("6.110992 mm")))
sketch7.addConstraint(Sketcher.Constraint("DistanceX", -1, 1, 27, 2, Q("35.956941 mm")))
sketch7.addConstraint(Sketcher.Constraint("DistanceY", 28, 2, -1, 1, Q("9.889008 mm")))
sketch7.addConstraint(Sketcher.Constraint("DistanceX", -1, 1, 30, 2, Q("35.139341 mm")))
sketch7.addConstraint(Sketcher.Constraint("DistanceX", 25, 2, 26, 2, Q("0.406941 mm")))
pocket4 = body.newObject("PartDesign::Pocket", "Pocket003")
pocket4.Profile = sketch7
pocket4.Length = 4
pocket4.Reversed = True
doc.recompute()

chamfer2 = body.newObject("PartDesign::Chamfer", "Chamfer001")
chamfer2.Base = (pocket4, edges_at(pocket4, [(-25.1, 10, 0)]))
chamfer2.Size = 2

sketch8 = body.newObject("Sketcher::SketchObject", "Sketch007")
sketch8.AttachmentSupport = (doc.getObject("XZ_Plane"), [""])
sketch8.MapMode = "FlatFace"
sketch8.AttachmentOffset = App.Placement(V(0, 0, -5), App.Rotation())
sketch8.addGeometry(Part.Circle(V(0, 0, 0), V(0, 0, 1), 22), False)
sketch8.addGeometry(Part.Circle(V(0, 0, 0), V(0, 0, 1), 12), False)
sketch8.addConstraint(Sketcher.Constraint("Coincident", 0, 3, -1, 1))
sketch8.addConstraint(Sketcher.Constraint("Coincident", 1, 3, -1, 1))
sketch8.addConstraint(Sketcher.Constraint("Diameter", 1, Q("24.8 mm")))
sketch8.addConstraint(Sketcher.Constraint("Diameter", 0, Q("43.277122 mm")))
pad4 = body.newObject("PartDesign::Pad", "Pad003")
pad4.Profile = sketch8
pad4.Length = 2
pad4.Reversed = True
doc.recompute()

chamfer3 = body.newObject("PartDesign::Chamfer", "Chamfer002")
chamfer3.Base = (pad4, edges_at(pad4, [(50, 10, 0)]))
chamfer3.Size = 5

sketch9 = body.newObject("Sketcher::SketchObject", "Sketch008")
sketch9.AttachmentSupport = (doc.getObject("XZ_Plane"), [""])
sketch9.MapMode = "FlatFace"
sketch9.addGeometry(Part.Circle(V(0, 0, 0), V(0, 0, 1), 9.4), False)
sketch9.addGeometry(Part.Circle(V(0, 0, 0), V(0, 0, 1), 3), False)
sketch9.addConstraint(Sketcher.Constraint("Coincident", 0, 3, -1, 1))
sketch9.addConstraint(Sketcher.Constraint("Coincident", 1, 3, -1, 1))
sketch9.addConstraint(Sketcher.Constraint("Diameter", 1, Q("6 mm")))
sketch9.addConstraint(Sketcher.Constraint("Diameter", 0, Q("18.8 mm")))
pad5 = body.newObject("PartDesign::Pad", "Pad004")
pad5.Profile = sketch9
pad5.Length = 10
pad5.Reversed = True

sketch10 = body.newObject("Sketcher::SketchObject", "Sketch009")
sketch10.AttachmentSupport = (doc.getObject("XZ_Plane"), [""])
sketch10.MapMode = "FlatFace"
sketch10.addGeometry(Part.Circle(V(0, 0, 0), V(0, 0, 1), 9), False)
sketch10.addConstraint(Sketcher.Constraint("Coincident", 0, 3, -1, 1))
sketch10.addConstraint(Sketcher.Constraint("Diameter", 0, Q("18.8 mm")))
pocket5 = body.newObject("PartDesign::Pocket", "Pocket004")
pocket5.Profile = sketch10
pocket5.Length = 4
doc.recompute()

fillet = body.newObject("PartDesign::Fillet", "Fillet")
fillet.Base = (pocket5, edges_at(pocket5, [(-73.301, 2.5, 25), (-73.301, 2.5, -25)]))
fillet.Radius = 4

sketch11 = body.newObject("Sketcher::SketchObject", "Sketch010")
sketch11.AttachmentSupport = (doc.getObject("XZ_Plane"), [""])
sketch11.MapMode = "FlatFace"
sketch11.AttachmentOffset = App.Placement(V(0, 0, -35), App.Rotation())
sketch11.addGeometry(Part.LineSegment(V(-65.3, -21, 0), V(-65.3, -25, 0)), False)
sketch11.addGeometry(Part.LineSegment(V(-65.3, -25, 0), V(-69.3, -25, 0)), False)
sketch11.addGeometry(Part.ArcOfCircle(Part.Circle(V(-69.3, -21, 0), V(0, 0, 1), 4), math.radians(180), math.radians(270)), False)
sketch11.addGeometry(Part.LineSegment(V(-73.3, -21, 0), V(-65.3, -21, 0)), False)
sketch11.addConstraint(Sketcher.Constraint("Coincident", 0, 2, 1, 1))
sketch11.addConstraint(Sketcher.Constraint("Tangent", 1, 2, 2, 2))
sketch11.addConstraint(Sketcher.Constraint("Coincident", 2, 1, 3, 1))
sketch11.addConstraint(Sketcher.Constraint("Coincident", 3, 2, 0, 1))
sketch11.addConstraint(Sketcher.Constraint("Vertical", 0))
sketch11.addConstraint(Sketcher.Constraint("Horizontal", 1))
sketch11.addConstraint(Sketcher.Constraint("Horizontal", 3))
sketch11.addConstraint(Sketcher.Constraint("Equal", 1, 0))
sketch11.addConstraint(Sketcher.Constraint("Radius", 2, Q("4 mm")))
sketch11.addConstraint(Sketcher.Constraint("DistanceX", 1, 2, 1, 1, Q("4 mm")))
sketch11.addConstraint(Sketcher.Constraint("DistanceY", 2, 3, -1, 1, Q("21 mm")))
sketch11.addConstraint(Sketcher.Constraint("DistanceX", 2, 3, -1, 1, Q("69.30127 mm")))
pad6 = body.newObject("PartDesign::Pad", "Pad005")
pad6.Profile = sketch11
pad6.Length = 30

sketch12 = body.newObject("Sketcher::SketchObject", "Sketch011")
sketch12.AttachmentSupport = (doc.getObject("YZ_Plane"), [""])
sketch12.MapMode = "FlatFace"
sketch12.AttachmentOffset = App.Placement(V(0, 0, -65.30127), App.Rotation())
sketch12.addGeometry(Part.LineSegment(V(35, -13, 0), V(21, -13, 0)), False)
sketch12.addGeometry(Part.LineSegment(V(21, -13, 0), V(21, -25, 0)), False)
sketch12.addGeometry(Part.LineSegment(V(21, -25, 0), V(35, -25, 0)), False)
sketch12.addGeometry(Part.LineSegment(V(35, -25, 0), V(35, -13, 0)), False)
sketch12.addConstraint(Sketcher.Constraint("Coincident", 0, 2, 1, 1))
sketch12.addConstraint(Sketcher.Constraint("Coincident", 1, 2, 2, 1))
sketch12.addConstraint(Sketcher.Constraint("Coincident", 2, 2, 3, 1))
sketch12.addConstraint(Sketcher.Constraint("Coincident", 3, 2, 0, 1))
sketch12.addConstraint(Sketcher.Constraint("Horizontal", 0))
sketch12.addConstraint(Sketcher.Constraint("Vertical", 1))
sketch12.addConstraint(Sketcher.Constraint("Horizontal", 2))
sketch12.addConstraint(Sketcher.Constraint("Vertical", 3))
sketch12.addConstraint(Sketcher.Constraint("DistanceX", 0, 2, 0, 1, Q("14 mm")))
sketch12.addConstraint(Sketcher.Constraint("DistanceY", 1, 2, 1, 1, Q("12 mm")))
sketch12.addConstraint(Sketcher.Constraint("DistanceX", -1, 1, 0, 2, Q("21 mm")))
sketch12.addConstraint(Sketcher.Constraint("DistanceY", 0, 2, -1, 1, Q("13 mm")))
pad7 = body.newObject("PartDesign::Pad", "Pad006")
pad7.Profile = sketch12
pad7.Length = 3

sketch13 = body.newObject("Sketcher::SketchObject", "Sketch012")
sketch13.AttachmentSupport = (doc.getObject("YZ_Plane"), [""])
sketch13.MapMode = "FlatFace"
sketch13.AttachmentOffset = App.Placement(V(0, 0, -65.30127), App.Rotation())
sketch13.addGeometry(Part.Circle(V(31.6, -18, 0), V(0, 0, 1), 1), False)
sketch13.addGeometry(Part.Circle(V(25.1, -18, 0), V(0, 0, 1), 1), False)
sketch13.addConstraint(Sketcher.Constraint("Equal", 0, 1))
sketch13.addConstraint(Sketcher.Constraint("Horizontal", 0, 3, 1, 3))
sketch13.addConstraint(Sketcher.Constraint("Diameter", 0, Q("2 mm")))
sketch13.addConstraint(Sketcher.Constraint("DistanceY", 0, 3, -1, 1, Q("18 mm")))
sketch13.addConstraint(Sketcher.Constraint("DistanceX", -1, 1, 0, 3, Q("31.6 mm")))
sketch13.addConstraint(Sketcher.Constraint("DistanceX", -1, 1, 1, 3, Q("25.09 mm")))
pocket6 = body.newObject("PartDesign::Pocket", "Pocket005")
pocket6.Profile = sketch13
pocket6.Length = 3
pocket6.Reversed = True

sketch14 = body.newObject("Sketcher::SketchObject", "Sketch013")
sketch14.AttachmentSupport = (doc.getObject("XY_Plane"), [""])
sketch14.MapMode = "FlatFace"
sketch14.AttachmentOffset = App.Placement(V(0, 0, -25), App.Rotation())
sketch14.addGeometry(Part.LineSegment(V(-62.3, 21, 0), V(-62.3, 5, 0)), False)
sketch14.addGeometry(Part.LineSegment(V(-62.3, 5, 0), V(-65.3, 5, 0)), False)
sketch14.addGeometry(Part.LineSegment(V(-65.3, 5, 0), V(-65.3, 21, 0)), False)
sketch14.addGeometry(Part.LineSegment(V(-65.3, 21, 0), V(-62.3, 21, 0)), False)
sketch14.addConstraint(Sketcher.Constraint("Coincident", 0, 2, 1, 1))
sketch14.addConstraint(Sketcher.Constraint("Coincident", 1, 2, 2, 1))
sketch14.addConstraint(Sketcher.Constraint("Coincident", 2, 2, 3, 1))
sketch14.addConstraint(Sketcher.Constraint("Coincident", 3, 2, 0, 1))
sketch14.addConstraint(Sketcher.Constraint("Vertical", 0))
sketch14.addConstraint(Sketcher.Constraint("Horizontal", 1))
sketch14.addConstraint(Sketcher.Constraint("Vertical", 2))
sketch14.addConstraint(Sketcher.Constraint("Horizontal", 3))
sketch14.addConstraint(Sketcher.Constraint("DistanceX", 1, 2, 1, 1, Q("3 mm")))
sketch14.addConstraint(Sketcher.Constraint("DistanceY", 0, 2, 0, 1, Q("16 mm")))
sketch14.addConstraint(Sketcher.Constraint("DistanceY", -1, 1, 0, 2, Q("5 mm")))
sketch14.addConstraint(Sketcher.Constraint("DistanceX", 0, 2, -1, 1, Q("62.30127 mm")))
pad8 = body.newObject("PartDesign::Pad", "Pad007")
pad8.Profile = sketch14
pad8.Length = 4

doc.recompute()
